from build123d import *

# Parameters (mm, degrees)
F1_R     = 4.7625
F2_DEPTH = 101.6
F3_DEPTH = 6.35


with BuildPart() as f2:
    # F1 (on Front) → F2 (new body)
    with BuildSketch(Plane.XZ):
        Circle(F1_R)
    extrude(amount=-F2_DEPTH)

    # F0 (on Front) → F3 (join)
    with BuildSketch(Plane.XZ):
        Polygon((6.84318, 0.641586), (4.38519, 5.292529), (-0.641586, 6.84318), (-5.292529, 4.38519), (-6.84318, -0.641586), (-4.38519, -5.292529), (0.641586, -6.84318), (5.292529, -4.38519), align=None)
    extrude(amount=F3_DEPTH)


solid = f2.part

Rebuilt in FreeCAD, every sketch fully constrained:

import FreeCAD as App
import Part
import Sketcher
from FreeCAD import Vector
Q = App.Units.Quantity


def add_polygon(sketch, points):
    """Adds a closed chain of lines whose ends are joined by coincident constraints."""
    first, n = sketch.GeometryCount, len(points)
    for a, b in zip(points, points[1:] + points[:1]):
        sketch.addGeometry(Part.LineSegment(App.Vector(*a, 0), App.Vector(*b, 0)), False)
    for i in range(n):
        sketch.addConstraint(Sketcher.Constraint("Coincident", first + i, 2, first + (i + 1) % n, 1))

doc = App.newDocument("Part")
params = doc.addObject("Spreadsheet::Sheet", "Params")
for row, (alias, value) in enumerate([
    ("sketch1_diameter", "0.375 in"),
    ("pad1_length", "4 in"),
    ("pad2_length", "0.25 in"),
], start=1):
    params.set(f"A{row}", alias)
    params.set(f"B{row}", "=" + value)
    params.setAlias(f"B{row}", alias)

body = doc.addObject("PartDesign::Body", "Body")

sketch1 = body.newObject("Sketcher::SketchObject", "Sketch")
sketch1.AttachmentSupport = (doc.getObject("XZ_Plane"), [""])
sketch1.MapMode = "FlatFace"
sketch1.addGeometry(Part.Circle(Vector(0, 0, 0), Vector(0, 0, 1), 4.7625), False)
sketch1.addConstraint(Sketcher.Constraint("Coincident", 0, 3, -1, 1))
sketch1.addConstraint(Sketcher.Constraint("Diameter", 0, Q("0.375 in")))
sketch1.setExpression("Constraints[1]", "Params.sketch1_diameter")
pad1 = body.newObject("PartDesign::Pad", "Pad")
pad1.Profile = sketch1
pad1.setExpression("Length", "Params.pad1_length")
pad1.Reversed = True

sketch2 = body.newObject("Sketcher::SketchObject", "Sketch001")
sketch2.AttachmentSupport = (doc.getObject("XZ_Plane"), [""])
sketch2.MapMode = "FlatFace"
add_polygon(sketch2, [(6.84318, 0.641586), (4.38519, 5.292529), (-0.641586, 6.84318), (-5.292529, 4.38519), (-6.84318, -0.641586), (-4.38519, -5.292529), (0.641586, -6.84318), (5.292529, -4.38519)])
sketch2.addConstraint(Sketcher.Constraint("Symmetric", 0, 2, 4, 2, -1, 1))
sketch2.addConstraint(Sketcher.Constraint("Symmetric", 1, 2, 5, 2, -1, 1))
sketch2.addConstraint(Sketcher.Constraint("Symmetric", 2, 2, 6, 2, -1, 1))
sketch2.addConstraint(Sketcher.Constraint("Symmetric", 3, 2, 7, 2, -1, 1))
sketch2.addConstraint(Sketcher.Constraint("Perpendicular", 0, 2))
sketch2.addConstraint(Sketcher.Constraint("Perpendicular", 1, 3))
sketch2.addConstraint(Sketcher.Constraint("Equal", 0, 1))
sketch2.addConstraint(Sketcher.Constraint("Equal", 1, 2))
sketch2.addConstraint(Sketcher.Constraint("Equal", 2, 3))
sketch2.addConstraint(Sketcher.Constraint("Distance", 0, 5.260512))
sketch2.addConstraint(Sketcher.Constraint("DistanceX", -1, 1, 0, 2, 4.38519))
sketch2.addConstraint(Sketcher.Constraint("DistanceY", -1, 1, 0, 2, 5.292529))
pad2 = body.newObject("PartDesign::Pad", "Pad001")
pad2.Profile = sketch2
pad2.setExpression("Length", "Params.pad2_length")

doc.recompute()
